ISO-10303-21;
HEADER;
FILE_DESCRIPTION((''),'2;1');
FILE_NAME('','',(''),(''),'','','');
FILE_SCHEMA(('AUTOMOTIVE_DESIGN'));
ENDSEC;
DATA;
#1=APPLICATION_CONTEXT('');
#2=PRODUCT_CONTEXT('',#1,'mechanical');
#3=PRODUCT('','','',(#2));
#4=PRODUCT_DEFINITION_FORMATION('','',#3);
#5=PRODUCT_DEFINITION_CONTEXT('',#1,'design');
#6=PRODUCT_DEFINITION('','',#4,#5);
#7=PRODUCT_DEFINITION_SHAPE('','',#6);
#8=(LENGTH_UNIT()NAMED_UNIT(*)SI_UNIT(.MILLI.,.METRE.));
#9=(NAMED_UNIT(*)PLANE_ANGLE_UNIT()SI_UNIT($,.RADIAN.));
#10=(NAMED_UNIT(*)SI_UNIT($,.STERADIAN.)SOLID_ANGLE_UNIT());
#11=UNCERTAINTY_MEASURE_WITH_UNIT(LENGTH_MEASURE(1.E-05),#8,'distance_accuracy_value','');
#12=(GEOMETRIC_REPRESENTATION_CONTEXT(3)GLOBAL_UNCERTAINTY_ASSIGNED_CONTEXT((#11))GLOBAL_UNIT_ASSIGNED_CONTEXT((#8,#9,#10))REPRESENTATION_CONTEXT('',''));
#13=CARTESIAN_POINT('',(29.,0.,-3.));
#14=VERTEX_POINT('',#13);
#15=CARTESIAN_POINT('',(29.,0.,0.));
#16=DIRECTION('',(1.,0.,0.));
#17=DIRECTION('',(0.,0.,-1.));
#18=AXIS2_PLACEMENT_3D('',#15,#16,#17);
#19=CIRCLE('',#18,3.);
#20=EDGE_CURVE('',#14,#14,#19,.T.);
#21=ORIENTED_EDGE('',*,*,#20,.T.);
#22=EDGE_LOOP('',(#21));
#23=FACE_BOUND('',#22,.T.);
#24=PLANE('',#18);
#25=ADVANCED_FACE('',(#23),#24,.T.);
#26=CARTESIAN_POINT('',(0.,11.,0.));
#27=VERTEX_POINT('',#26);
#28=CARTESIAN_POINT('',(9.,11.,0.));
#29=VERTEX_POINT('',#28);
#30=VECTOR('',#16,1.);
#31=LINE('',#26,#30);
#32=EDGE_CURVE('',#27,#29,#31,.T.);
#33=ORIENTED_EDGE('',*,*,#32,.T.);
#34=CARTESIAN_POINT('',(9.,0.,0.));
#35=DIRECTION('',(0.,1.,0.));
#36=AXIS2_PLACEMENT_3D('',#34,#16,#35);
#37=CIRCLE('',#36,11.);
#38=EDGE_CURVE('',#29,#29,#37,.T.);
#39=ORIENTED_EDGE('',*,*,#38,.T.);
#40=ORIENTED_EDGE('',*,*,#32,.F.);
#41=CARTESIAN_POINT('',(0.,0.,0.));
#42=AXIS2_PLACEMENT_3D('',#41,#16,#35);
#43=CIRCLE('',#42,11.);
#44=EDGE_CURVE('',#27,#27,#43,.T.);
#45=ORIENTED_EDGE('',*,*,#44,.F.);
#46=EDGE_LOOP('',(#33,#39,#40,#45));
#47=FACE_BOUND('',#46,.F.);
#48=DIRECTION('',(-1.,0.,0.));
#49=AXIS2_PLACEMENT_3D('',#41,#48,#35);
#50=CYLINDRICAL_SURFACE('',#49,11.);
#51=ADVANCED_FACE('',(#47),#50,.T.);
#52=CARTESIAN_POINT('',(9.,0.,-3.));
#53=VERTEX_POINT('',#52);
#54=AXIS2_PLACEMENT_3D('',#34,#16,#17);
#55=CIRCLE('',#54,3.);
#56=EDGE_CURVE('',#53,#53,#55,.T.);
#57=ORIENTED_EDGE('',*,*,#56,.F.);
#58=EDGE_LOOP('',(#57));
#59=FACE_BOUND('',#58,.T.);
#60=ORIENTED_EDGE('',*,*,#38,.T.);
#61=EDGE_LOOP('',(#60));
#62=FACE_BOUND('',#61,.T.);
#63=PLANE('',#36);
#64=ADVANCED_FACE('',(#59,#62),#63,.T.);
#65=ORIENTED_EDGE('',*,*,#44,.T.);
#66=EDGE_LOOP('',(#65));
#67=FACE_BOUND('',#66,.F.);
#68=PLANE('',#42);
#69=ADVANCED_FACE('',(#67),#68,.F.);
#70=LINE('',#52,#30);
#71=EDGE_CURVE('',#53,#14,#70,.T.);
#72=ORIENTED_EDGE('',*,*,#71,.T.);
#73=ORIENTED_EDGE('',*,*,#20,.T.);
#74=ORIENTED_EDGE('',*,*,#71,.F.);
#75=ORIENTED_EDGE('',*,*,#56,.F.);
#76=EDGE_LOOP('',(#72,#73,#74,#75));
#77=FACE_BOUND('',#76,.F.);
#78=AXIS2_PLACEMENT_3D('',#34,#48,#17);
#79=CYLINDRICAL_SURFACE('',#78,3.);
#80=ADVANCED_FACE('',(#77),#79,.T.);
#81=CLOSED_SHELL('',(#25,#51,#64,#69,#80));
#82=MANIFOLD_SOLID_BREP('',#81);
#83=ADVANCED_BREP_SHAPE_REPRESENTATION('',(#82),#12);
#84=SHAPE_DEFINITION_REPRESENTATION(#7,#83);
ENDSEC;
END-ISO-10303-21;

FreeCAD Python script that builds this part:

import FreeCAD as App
import Part
import Sketcher
from FreeCAD import Vector
Q = App.Units.Quantity

doc = App.newDocument("Part")
body = doc.addObject("PartDesign::Body", "Body")

sketch1 = body.newObject("Sketcher::SketchObject", "Sketch")
sketch1.AttachmentSupport = (doc.getObject("YZ_Plane"), [""])
sketch1.MapMode = "FlatFace"
sketch1.addGeometry(Part.Circle(Vector(0, 0, 0), Vector(0, 0, 1), 11), False)
sketch1.addConstraint([
    Sketcher.Constraint("Coincident", 0, 3, -1, 1),
    Sketcher.Constraint("Diameter", 0, Q("22 mm")),
])
pad1 = body.newObject("PartDesign::Pad", "Pad")
pad1.Profile = sketch1
pad1.Length = 9

sketch2 = body.newObject("Sketcher::SketchObject", "Sketch001")
sketch2.AttachmentSupport = (doc.getObject("YZ_Plane"), [""])
sketch2.MapMode = "FlatFace"
sketch2.AttachmentOffset = App.Placement(Vector(0, 0, 9), App.Rotation())
sketch2.addGeometry(Part.Circle(Vector(0, 0, 0), Vector(0, 0, 1), 3), False)
sketch2.addConstraint([
    Sketcher.Constraint("Coincident", 0, 3, -1, 1),
    Sketcher.Constraint("Diameter", 0, Q("6 mm")),
])
pad2 = body.newObject("PartDesign::Pad", "Pad001")
pad2.Profile = sketch2
pad2.Length = 20

doc.recompute()
